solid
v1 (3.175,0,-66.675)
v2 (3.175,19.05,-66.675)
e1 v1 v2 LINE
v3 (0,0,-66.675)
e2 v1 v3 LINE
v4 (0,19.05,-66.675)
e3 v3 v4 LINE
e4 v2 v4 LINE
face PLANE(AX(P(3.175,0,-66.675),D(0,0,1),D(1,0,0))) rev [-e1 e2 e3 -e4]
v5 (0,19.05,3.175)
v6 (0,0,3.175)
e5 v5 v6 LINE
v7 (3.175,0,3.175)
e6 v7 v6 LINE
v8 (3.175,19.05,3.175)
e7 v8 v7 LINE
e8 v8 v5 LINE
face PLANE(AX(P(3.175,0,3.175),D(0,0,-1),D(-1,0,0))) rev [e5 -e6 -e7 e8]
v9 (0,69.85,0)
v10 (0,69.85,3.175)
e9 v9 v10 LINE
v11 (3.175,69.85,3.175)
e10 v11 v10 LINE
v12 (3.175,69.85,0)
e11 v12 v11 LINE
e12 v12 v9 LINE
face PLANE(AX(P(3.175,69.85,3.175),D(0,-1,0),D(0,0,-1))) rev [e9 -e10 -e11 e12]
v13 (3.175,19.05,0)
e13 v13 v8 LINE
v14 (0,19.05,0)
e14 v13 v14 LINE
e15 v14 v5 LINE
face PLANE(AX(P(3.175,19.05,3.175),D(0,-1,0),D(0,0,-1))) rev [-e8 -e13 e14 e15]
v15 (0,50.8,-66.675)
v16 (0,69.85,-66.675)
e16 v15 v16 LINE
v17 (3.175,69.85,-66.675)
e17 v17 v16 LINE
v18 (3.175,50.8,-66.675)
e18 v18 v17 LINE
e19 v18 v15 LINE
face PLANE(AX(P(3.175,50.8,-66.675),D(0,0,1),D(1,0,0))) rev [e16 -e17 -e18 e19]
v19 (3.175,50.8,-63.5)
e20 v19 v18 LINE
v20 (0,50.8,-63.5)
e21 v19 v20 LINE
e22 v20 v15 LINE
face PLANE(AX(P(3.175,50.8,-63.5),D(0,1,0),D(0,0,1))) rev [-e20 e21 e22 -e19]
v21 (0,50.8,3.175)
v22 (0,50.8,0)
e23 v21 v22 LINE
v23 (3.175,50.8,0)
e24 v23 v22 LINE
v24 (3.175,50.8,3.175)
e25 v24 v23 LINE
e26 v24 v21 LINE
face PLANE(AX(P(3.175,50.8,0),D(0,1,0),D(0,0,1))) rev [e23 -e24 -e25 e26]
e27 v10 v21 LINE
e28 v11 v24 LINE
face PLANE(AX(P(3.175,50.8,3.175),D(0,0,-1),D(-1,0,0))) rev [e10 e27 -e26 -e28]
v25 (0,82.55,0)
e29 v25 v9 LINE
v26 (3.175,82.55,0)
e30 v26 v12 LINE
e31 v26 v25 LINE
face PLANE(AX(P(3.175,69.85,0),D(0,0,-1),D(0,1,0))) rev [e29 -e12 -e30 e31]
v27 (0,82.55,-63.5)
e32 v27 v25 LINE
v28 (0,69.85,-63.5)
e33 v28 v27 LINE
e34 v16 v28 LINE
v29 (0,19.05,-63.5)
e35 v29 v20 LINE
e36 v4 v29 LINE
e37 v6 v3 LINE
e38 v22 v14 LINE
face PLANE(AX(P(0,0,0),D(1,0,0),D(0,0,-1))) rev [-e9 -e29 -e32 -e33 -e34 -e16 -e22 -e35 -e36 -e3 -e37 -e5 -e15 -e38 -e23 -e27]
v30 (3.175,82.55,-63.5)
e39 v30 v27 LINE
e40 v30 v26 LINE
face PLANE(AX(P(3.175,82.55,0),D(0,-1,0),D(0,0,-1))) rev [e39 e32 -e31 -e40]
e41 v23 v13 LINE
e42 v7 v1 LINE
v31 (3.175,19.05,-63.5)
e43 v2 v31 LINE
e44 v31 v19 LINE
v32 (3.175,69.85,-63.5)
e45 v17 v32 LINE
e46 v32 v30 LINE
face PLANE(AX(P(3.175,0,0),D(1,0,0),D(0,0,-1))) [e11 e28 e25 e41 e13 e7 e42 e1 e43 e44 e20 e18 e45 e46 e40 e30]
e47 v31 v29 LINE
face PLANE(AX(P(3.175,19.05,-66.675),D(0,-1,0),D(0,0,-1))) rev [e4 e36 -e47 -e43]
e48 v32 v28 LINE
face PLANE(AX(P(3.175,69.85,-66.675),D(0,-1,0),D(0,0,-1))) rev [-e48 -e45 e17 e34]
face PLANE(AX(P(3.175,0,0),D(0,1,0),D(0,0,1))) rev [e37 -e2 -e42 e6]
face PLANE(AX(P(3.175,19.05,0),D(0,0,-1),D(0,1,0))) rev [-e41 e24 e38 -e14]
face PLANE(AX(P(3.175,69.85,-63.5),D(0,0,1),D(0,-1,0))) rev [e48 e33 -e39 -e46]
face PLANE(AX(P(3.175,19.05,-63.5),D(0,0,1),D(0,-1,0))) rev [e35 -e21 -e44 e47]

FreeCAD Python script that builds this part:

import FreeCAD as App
import Part
import Sketcher
Q = App.Units.Quantity

doc = App.newDocument("Part")
body = doc.addObject("PartDesign::Body", "Body")

sketch1 = doc.addObject("Sketcher::SketchObject", "Sketch")
body.addObject(sketch1)
sketch1.AttachmentSupport = (doc.YZ_Plane, [""])
sketch1.MapMode = "FlatFace"
sketch1.addGeometry([
    Part.LineSegment(App.Vector(0, 3.2, 0), App.Vector(0, -66.7, 0)),
    Part.LineSegment(App.Vector(0, -66.7, 0), App.Vector(19.1, -66.7, 0)),
    Part.LineSegment(App.Vector(19.1, -66.7, 0), App.Vector(19.1, -63.5, 0)),
    Part.LineSegment(App.Vector(19.1, -63.5, 0), App.Vector(50.8, -63.5, 0)),
    Part.LineSegment(App.Vector(50.8, -63.5, 0), App.Vector(50.8, -66.7, 0)),
    Part.LineSegment(App.Vector(50.8, -66.7, 0), App.Vector(69.8, -66.7, 0)),
    Part.LineSegment(App.Vector(69.8, -66.7, 0), App.Vector(69.8, -63.5, 0)),
    Part.LineSegment(App.Vector(69.8, -63.5, 0), App.Vector(82.5, -63.5, 0)),
    Part.LineSegment(App.Vector(82.5, -63.5, 0), App.Vector(82.5, 0, 0)),
    Part.LineSegment(App.Vector(82.5, 0, 0), App.Vector(69.8, 0, 0)),
    Part.LineSegment(App.Vector(69.8, 0, 0), App.Vector(69.8, 3.2, 0)),
    Part.LineSegment(App.Vector(69.8, 3.2, 0), App.Vector(50.8, 3.2, 0)),
    Part.LineSegment(App.Vector(50.8, 3.2, 0), App.Vector(50.8, 0, 0)),
    Part.LineSegment(App.Vector(50.8, 0, 0), App.Vector(19.1, 0, 0)),
    Part.LineSegment(App.Vector(19.1, 0, 0), App.Vector(19.1, 3.2, 0)),
    Part.LineSegment(App.Vector(19.1, 3.2, 0), App.Vector(0, 3.2, 0)),
], False)
sketch1.addConstraint([
    Sketcher.Constraint("Coincident", 0, 2, 1, 1),
    Sketcher.Constraint("Coincident", 1, 2, 2, 1),
    Sketcher.Constraint("Coincident", 2, 2, 3, 1),
    Sketcher.Constraint("Coincident", 3, 2, 4, 1),
    Sketcher.Constraint("Coincident", 4, 2, 5, 1),
    Sketcher.Constraint("Coincident", 5, 2, 6, 1),
    Sketcher.Constraint("Coincident", 6, 2, 7, 1),
    Sketcher.Constraint("Coincident", 7, 2, 8, 1),
    Sketcher.Constraint("Coincident", 8, 2, 9, 1),
    Sketcher.Constraint("Coincident", 9, 2, 10, 1),
    Sketcher.Constraint("Coincident", 10, 2, 11, 1),
    Sketcher.Constraint("Coincident", 11, 2, 12, 1),
    Sketcher.Constraint("Coincident", 12, 2, 13, 1),
    Sketcher.Constraint("Coincident", 13, 2, 14, 1),
    Sketcher.Constraint("Coincident", 14, 2, 15, 1),
    Sketcher.Constraint("Coincident", 15, 2, 0, 1),
    Sketcher.Constraint("Vertical", 0),
    Sketcher.Constraint("Horizontal", 1),
    Sketcher.Constraint("Vertical", 2),
    Sketcher.Constraint("Horizontal", 3),
    Sketcher.Constraint("Vertical", 4),
    Sketcher.Constraint("Horizontal", 5),
    Sketcher.Constraint("Vertical", 6),
    Sketcher.Constraint("Horizontal", 7),
    Sketcher.Constraint("Vertical", 8),
    Sketcher.Constraint("Horizontal", 9),
    Sketcher.Constraint("Vertical", 10),
    Sketcher.Constraint("Horizontal", 11),
    Sketcher.Constraint("Vertical", 12),
    Sketcher.Constraint("Horizontal", 13),
    Sketcher.Constraint("Vertical", 14),
    Sketcher.Constraint("Horizontal", 15),
    Sketcher.Constraint("PointOnObject", 0, 2, -2),
    Sketcher.Constraint("PointOnObject", 8, 2, -1),
    Sketcher.Constraint("PointOnObject", 12, 2, -1),
    Sketcher.Constraint("Horizontal", 1, 2, 4, 2),
    Sketcher.Constraint("Horizontal", 3, 2, 6, 2),
    Sketcher.Constraint("Horizontal", 11, 2, 14, 2),
    Sketcher.Constraint("Vertical", 6, 2, 9, 2),
    Sketcher.Constraint("Vertical", 4, 2, 11, 2),
    Sketcher.Constraint("Vertical", 2, 2, 13, 2),
    Sketcher.Constraint("Equal", 1, 5),
    Sketcher.Constraint("Equal", 6, 10),
    Sketcher.Constraint("DistanceX", 7, 1, 7, 2, Q("0.5 in")),
    Sketcher.Constraint("DistanceY", 8, 1, 8, 2, Q("2.5 in")),
    Sketcher.Constraint("DistanceX", -1, 1, 3, 2, Q("2 in")),
    Sketcher.Constraint("DistanceX", 1, 1, 1, 2, Q("0.75 in")),
    Sketcher.Constraint("DistanceY", 0, 2, 0, 1, Q("2.75 in")),
])
pad1 = doc.addObject("PartDesign::Pad", "Pad")
body.addObject(pad1)
pad1.Profile = sketch1
pad1.Length = Q("0.125 in")

doc.recompute()
